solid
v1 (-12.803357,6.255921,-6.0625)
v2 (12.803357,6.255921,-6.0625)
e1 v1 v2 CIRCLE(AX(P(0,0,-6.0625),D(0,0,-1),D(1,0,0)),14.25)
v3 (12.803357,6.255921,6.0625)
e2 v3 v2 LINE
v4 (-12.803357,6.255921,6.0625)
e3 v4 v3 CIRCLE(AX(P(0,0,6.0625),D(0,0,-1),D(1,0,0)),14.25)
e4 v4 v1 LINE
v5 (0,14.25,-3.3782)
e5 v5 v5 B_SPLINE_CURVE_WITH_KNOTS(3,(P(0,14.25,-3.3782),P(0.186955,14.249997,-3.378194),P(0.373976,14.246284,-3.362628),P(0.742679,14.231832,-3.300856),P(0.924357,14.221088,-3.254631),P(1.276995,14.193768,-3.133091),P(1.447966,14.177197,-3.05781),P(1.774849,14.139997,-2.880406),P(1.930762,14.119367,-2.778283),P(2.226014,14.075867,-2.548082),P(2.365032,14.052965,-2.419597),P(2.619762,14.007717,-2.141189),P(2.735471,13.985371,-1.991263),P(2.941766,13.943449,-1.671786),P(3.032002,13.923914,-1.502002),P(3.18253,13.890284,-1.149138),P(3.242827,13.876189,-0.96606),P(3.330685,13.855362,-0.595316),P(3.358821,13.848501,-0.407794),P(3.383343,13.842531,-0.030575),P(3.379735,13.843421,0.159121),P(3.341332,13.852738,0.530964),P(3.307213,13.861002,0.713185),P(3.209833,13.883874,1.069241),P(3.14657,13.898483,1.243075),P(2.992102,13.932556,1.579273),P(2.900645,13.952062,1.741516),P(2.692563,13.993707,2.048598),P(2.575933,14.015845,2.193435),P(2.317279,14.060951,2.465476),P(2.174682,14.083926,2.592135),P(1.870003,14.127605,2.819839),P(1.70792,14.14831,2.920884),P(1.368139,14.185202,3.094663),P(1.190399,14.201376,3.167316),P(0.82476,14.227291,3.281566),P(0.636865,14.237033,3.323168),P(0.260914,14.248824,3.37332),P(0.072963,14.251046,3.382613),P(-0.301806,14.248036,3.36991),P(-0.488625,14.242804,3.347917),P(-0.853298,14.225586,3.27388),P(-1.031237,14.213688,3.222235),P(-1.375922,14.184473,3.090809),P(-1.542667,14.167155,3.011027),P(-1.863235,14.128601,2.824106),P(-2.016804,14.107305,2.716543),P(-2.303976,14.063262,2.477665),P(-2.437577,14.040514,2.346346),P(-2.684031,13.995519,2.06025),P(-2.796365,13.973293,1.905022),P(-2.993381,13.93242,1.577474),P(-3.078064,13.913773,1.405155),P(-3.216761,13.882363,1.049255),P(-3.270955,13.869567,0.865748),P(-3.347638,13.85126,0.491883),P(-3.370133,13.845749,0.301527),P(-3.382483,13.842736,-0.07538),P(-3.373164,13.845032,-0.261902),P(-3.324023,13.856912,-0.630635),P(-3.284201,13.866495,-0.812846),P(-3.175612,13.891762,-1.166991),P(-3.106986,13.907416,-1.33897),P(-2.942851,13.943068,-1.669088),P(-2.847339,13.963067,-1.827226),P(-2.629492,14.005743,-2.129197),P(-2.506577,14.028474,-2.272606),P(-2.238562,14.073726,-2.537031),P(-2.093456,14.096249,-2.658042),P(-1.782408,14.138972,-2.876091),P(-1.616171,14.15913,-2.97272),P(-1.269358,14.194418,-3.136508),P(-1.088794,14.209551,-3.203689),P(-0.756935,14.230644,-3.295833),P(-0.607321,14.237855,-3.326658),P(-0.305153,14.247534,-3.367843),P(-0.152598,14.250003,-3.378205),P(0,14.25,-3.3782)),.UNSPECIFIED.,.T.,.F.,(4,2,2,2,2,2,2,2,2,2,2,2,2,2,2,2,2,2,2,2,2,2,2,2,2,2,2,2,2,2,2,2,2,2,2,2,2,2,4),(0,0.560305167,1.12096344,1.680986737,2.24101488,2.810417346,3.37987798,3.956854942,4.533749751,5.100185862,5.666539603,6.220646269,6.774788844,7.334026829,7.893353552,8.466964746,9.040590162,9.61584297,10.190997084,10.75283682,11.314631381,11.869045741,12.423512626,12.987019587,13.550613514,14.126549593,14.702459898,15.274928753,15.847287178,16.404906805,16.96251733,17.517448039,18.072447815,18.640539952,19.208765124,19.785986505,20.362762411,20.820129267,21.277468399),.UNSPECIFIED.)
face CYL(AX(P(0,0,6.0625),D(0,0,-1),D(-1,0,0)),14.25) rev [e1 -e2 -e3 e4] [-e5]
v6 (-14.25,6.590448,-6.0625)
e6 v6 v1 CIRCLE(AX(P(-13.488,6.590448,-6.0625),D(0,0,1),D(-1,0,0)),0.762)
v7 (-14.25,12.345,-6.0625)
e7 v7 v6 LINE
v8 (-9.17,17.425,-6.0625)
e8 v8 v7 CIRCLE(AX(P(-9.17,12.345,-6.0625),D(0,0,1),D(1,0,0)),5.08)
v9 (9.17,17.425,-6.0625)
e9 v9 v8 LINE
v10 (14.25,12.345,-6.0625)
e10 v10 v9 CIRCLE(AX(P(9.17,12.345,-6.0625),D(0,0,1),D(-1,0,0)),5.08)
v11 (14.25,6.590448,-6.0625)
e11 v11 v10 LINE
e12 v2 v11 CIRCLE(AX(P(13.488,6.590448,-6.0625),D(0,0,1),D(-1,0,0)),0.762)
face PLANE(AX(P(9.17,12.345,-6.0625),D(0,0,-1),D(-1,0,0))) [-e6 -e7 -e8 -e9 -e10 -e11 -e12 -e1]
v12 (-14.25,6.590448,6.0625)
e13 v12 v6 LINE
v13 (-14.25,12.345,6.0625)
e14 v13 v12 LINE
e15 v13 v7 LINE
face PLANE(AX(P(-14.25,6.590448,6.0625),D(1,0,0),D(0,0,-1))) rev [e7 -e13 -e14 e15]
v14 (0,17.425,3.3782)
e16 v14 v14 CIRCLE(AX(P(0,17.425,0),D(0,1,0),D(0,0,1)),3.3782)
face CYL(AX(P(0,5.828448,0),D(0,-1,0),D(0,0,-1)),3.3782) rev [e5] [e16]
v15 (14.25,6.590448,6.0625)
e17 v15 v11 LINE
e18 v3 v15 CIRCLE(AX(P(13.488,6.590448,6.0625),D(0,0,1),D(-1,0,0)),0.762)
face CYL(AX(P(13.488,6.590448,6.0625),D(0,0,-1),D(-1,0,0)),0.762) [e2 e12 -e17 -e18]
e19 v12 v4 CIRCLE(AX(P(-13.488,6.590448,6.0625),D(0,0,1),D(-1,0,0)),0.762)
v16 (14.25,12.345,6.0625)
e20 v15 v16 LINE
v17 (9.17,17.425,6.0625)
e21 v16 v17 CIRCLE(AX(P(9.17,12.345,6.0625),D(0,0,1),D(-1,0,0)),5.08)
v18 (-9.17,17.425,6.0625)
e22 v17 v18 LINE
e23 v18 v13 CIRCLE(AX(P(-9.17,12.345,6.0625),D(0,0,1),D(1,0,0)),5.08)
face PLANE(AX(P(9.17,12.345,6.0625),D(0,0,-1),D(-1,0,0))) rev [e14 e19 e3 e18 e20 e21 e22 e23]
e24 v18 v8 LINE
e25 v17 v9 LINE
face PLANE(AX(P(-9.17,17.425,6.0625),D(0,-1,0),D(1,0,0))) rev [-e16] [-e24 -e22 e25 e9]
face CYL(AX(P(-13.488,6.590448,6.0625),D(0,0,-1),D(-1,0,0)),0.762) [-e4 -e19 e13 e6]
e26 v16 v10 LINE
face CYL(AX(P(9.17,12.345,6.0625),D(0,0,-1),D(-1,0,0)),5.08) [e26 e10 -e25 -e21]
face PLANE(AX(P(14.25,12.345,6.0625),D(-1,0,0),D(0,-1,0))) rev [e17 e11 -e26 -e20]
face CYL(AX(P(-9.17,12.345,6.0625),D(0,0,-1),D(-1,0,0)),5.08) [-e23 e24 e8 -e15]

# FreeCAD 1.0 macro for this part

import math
import FreeCAD as App
import Part
import Sketcher
from FreeCAD import Vector
Q = App.Units.Quantity

doc = App.newDocument("Part")
body = doc.addObject("PartDesign::Body", "Body")

# Sketch on XY plane
sketch1 = body.newObject("Sketcher::SketchObject", "Sketch")
sketch1.AttachmentSupport = (doc.getObject("XY_Plane"), [""])
sketch1.MapMode = "FlatFace"
sketch1.addGeometry(Part.LineSegment(Vector(-14.2, 12.3, 0), Vector(-14.2, 6.6, 0)), False)
sketch1.addGeometry(Part.ArcOfCircle(Part.Circle(Vector(-13.5, 6.6, 0), Vector(0, 0, 1), 0.8), math.radians(180), math.radians(334)), False)
sketch1.addGeometry(Part.ArcOfCircle(Part.Circle(Vector(0, 0, 0), Vector(0, 0, 1), 14.2), math.radians(26), math.radians(154)), False)
sketch1.addGeometry(Part.ArcOfCircle(Part.Circle(Vector(13.5, 6.6, 0), Vector(0, 0, 1), 0.8), math.radians(-154), math.radians(0)), False)
sketch1.addGeometry(Part.LineSegment(Vector(14.2, 6.6, 0), Vector(14.2, 12.3, 0)), False)
sketch1.addGeometry(Part.ArcOfCircle(Part.Circle(Vector(9.2, 12.3, 0), Vector(0, 0, 1), 5.1), math.radians(0), math.radians(90)), False)
sketch1.addGeometry(Part.LineSegment(Vector(9.2, 17.4, 0), Vector(-9.2, 17.4, 0)), False)
sketch1.addGeometry(Part.ArcOfCircle(Part.Circle(Vector(-9.2, 12.3, 0), Vector(0, 0, 1), 5.1), math.radians(90), math.radians(180)), False)
sketch1.addConstraint(Sketcher.Constraint("Tangent", 0, 2, 1, 1))
sketch1.addConstraint(Sketcher.Constraint("Tangent", 1, 2, 2, 2))
sketch1.addConstraint(Sketcher.Constraint("Tangent", 2, 1, 3, 1))
sketch1.addConstraint(Sketcher.Constraint("Tangent", 3, 2, 4, 1))
sketch1.addConstraint(Sketcher.Constraint("Tangent", 4, 2, 5, 1))
sketch1.addConstraint(Sketcher.Constraint("Tangent", 5, 2, 6, 1))
sketch1.addConstraint(Sketcher.Constraint("Tangent", 6, 2, 7, 1))
sketch1.addConstraint(Sketcher.Constraint("Tangent", 7, 2, 0, 1))
sketch1.addConstraint(Sketcher.Constraint("Vertical", 0))
sketch1.addConstraint(Sketcher.Constraint("Vertical", 4))
sketch1.addConstraint(Sketcher.Constraint("Horizontal", 6))
sketch1.addConstraint(Sketcher.Constraint("Coincident", 2, 3, -1, 1))
sketch1.addConstraint(Sketcher.Constraint("Equal", 1, 3))
sketch1.addConstraint(Sketcher.Constraint("Equal", 5, 7))
sketch1.addConstraint(Sketcher.Constraint("Horizontal", 1, 3, 3, 3))
sketch1.addConstraint(Sketcher.Constraint("Radius", 5, Q("0.2 in")))
sketch1.addConstraint(Sketcher.Constraint("Radius", 1, Q("0.03 in")))
sketch1.addConstraint(Sketcher.Constraint("Radius", 2, 14.25))
sketch1.addConstraint(Sketcher.Constraint("DistanceX", 6, 2, 6, 1, 18.34))
sketch1.addConstraint(Sketcher.Constraint("DistanceY", -1, 1, 5, 3, 12.345))
pad1 = body.newObject("PartDesign::Pad", "Pad")
pad1.Profile = sketch1
pad1.Length = 12.125
pad1.Midplane = True

# Sketch on XZ plane
sketch2 = body.newObject("Sketcher::SketchObject", "Sketch001")
sketch2.AttachmentSupport = (doc.getObject("XZ_Plane"), [""])
sketch2.MapMode = "FlatFace"
sketch2.addGeometry(Part.Circle(Vector(0, 0, 0), Vector(0, 0, 1), 3.4), False)
sketch2.addConstraint(Sketcher.Constraint("Coincident", 0, 3, -1, 1))
sketch2.addConstraint(Sketcher.Constraint("Diameter", 0, Q("0.266 in")))
pocket1 = body.newObject("PartDesign::Pocket", "Pocket")
pocket1.Profile = sketch2
pocket1.Type = "ThroughAll"
pocket1.Midplane = True

doc.recompute()
